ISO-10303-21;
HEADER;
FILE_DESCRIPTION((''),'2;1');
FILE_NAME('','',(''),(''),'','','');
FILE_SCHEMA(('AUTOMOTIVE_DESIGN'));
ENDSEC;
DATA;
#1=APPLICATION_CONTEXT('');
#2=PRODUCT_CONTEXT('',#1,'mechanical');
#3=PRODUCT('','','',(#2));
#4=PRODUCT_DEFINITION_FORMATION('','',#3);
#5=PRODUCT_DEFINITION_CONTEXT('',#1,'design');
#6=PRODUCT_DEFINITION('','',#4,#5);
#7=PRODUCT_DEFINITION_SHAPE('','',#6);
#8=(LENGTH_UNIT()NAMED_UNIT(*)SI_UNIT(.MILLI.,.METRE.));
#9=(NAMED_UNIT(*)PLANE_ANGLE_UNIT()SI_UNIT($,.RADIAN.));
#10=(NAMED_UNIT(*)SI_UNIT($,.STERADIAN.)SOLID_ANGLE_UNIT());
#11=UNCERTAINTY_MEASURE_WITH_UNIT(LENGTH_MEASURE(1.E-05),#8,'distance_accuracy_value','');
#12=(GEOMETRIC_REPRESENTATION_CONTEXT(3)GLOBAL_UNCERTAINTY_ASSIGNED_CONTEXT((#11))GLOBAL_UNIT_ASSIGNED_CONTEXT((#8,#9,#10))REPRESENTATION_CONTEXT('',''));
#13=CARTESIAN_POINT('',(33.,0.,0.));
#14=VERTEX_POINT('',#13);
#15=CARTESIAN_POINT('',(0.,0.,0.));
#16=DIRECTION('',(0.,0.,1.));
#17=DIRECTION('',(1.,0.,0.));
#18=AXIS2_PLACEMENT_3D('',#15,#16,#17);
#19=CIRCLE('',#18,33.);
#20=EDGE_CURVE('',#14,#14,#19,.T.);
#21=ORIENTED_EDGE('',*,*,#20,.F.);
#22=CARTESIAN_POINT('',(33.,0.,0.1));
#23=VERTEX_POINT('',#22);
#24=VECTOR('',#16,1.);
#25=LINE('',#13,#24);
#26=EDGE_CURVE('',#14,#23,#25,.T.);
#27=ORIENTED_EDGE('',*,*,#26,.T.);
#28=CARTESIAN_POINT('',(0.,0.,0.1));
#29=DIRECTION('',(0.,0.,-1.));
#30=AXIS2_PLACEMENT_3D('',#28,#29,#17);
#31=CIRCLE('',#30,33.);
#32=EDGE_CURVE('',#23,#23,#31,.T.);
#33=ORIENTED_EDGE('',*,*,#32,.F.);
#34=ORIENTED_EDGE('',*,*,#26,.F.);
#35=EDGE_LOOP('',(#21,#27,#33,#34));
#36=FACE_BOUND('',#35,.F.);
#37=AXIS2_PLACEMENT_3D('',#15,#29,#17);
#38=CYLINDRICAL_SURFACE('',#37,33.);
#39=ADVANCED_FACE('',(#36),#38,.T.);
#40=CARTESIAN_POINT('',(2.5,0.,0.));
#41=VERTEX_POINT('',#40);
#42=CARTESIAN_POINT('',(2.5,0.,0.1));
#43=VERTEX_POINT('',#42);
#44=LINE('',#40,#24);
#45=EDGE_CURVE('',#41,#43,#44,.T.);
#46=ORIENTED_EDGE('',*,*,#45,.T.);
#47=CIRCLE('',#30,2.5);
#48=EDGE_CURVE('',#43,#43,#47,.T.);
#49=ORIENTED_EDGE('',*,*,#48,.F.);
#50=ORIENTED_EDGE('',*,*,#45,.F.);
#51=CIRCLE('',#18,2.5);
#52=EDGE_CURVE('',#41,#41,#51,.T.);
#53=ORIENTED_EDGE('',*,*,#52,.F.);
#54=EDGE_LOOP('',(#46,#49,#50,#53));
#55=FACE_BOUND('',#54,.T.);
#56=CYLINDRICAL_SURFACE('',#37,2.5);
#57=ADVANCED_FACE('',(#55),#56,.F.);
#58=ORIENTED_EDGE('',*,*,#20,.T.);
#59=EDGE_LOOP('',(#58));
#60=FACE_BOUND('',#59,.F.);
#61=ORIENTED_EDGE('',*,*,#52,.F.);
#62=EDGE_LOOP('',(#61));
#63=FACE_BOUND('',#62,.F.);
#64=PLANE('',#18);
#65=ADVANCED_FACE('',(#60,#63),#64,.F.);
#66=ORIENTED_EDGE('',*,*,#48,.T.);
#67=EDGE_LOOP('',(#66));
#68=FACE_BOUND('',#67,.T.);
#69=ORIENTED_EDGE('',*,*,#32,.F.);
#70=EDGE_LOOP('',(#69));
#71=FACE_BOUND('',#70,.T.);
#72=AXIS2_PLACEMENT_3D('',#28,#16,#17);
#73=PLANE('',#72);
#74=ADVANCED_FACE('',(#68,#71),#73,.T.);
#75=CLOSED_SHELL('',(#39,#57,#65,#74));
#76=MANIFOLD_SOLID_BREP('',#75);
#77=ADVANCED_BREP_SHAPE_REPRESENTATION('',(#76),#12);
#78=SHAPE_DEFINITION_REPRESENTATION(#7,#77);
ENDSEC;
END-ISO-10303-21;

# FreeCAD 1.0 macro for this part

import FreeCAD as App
import Part
import Sketcher
from FreeCAD import Vector

doc = App.newDocument("Part")
params = doc.addObject("Spreadsheet::Sheet", "Params")
for row, (alias, value) in enumerate([
    ("sketch1_diameter", "66 mm"),
    ("sketch1_diameter2", "5 mm"),
    ("pad1_length", "0.1 mm"),
], start=1):
    params.set(f"A{row}", alias)
    params.set(f"B{row}", "=" + value)
    params.setAlias(f"B{row}", alias)

body = doc.addObject("PartDesign::Body", "Body")

# Sketch on XY plane
sketch1 = doc.addObject("Sketcher::SketchObject", "Sketch")
body.addObject(sketch1)
sketch1.AttachmentSupport = (doc.XY_Plane, [""])
sketch1.MapMode = "FlatFace"
sketch1.addGeometry(Part.Circle(Vector(0, 0, 0), Vector(0, 0, 1), 33), False)
sketch1.addGeometry(Part.Circle(Vector(0, 0, 0), Vector(0, 0, 1), 2.5), False)
sketch1.addConstraint(Sketcher.Constraint("Coincident", 0, 3, -1, 1))
sketch1.addConstraint(Sketcher.Constraint("Coincident", 1, 3, -1, 1))
sketch1.addConstraint(Sketcher.Constraint("Diameter", 0, 66.0))
sketch1.addConstraint(Sketcher.Constraint("Diameter", 1, 5.0))
sketch1.setExpression("Constraints[2]", "Params.sketch1_diameter")
sketch1.setExpression("Constraints[3]", "Params.sketch1_diameter2")
pad1 = doc.addObject("PartDesign::Pad", "Pad")
body.addObject(pad1)
pad1.Profile = sketch1
pad1.setExpression("Length", "Params.pad1_length")

doc.recompute()
